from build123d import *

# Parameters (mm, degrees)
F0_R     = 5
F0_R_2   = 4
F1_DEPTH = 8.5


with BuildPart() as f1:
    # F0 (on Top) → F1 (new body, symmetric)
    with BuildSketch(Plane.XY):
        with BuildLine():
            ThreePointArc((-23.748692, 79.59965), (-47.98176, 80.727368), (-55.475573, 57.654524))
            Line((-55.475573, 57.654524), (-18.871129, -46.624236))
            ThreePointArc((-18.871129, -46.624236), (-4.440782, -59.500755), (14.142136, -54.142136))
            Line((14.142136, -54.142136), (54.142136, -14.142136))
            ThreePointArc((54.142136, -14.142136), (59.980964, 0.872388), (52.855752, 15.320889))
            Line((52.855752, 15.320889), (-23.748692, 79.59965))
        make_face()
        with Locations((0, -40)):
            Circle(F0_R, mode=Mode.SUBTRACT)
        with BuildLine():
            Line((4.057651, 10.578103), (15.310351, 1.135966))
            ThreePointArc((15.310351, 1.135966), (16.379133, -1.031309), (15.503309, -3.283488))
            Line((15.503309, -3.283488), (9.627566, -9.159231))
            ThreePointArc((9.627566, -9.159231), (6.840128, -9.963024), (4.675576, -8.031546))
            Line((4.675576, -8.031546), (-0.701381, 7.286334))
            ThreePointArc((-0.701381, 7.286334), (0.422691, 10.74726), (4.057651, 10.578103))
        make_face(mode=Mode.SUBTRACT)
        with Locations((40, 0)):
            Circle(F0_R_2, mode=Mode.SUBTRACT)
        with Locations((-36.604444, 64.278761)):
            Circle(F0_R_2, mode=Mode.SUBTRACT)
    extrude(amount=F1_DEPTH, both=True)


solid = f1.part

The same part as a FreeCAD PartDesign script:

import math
import FreeCAD as App
import Part
import Sketcher
from FreeCAD import Vector
Q = App.Units.Quantity

doc = App.newDocument("Part")
params = doc.addObject("Spreadsheet::Sheet", "Params")
for row, (alias, value) in enumerate([
    ("sketch1_diameter", "10 mm"),
    ("sketch1_diameter2", "8 mm"),
    ("sketch1_radius", "20 mm"),
    ("sketch1_radius2", "3 mm"),
    ("sketch1_length", "100 mm"),
    ("pad1_length", "17 mm"),
], start=1):
    params.set(f"A{row}", alias)
    params.set(f"B{row}", "=" + value)
    params.setAlias(f"B{row}", alias)

body = doc.addObject("PartDesign::Body", "Body")

# Sketch on XY plane
sketch1 = body.newObject("Sketcher::SketchObject", "Sketch")
sketch1.AttachmentSupport = (doc.getObject("XY_Plane"), [""])
sketch1.MapMode = "FlatFace"
sketch1.addGeometry([
    Part.ArcOfCircle(Part.Circle(Vector(-36.6, 64.3, 0), Vector(0, 0, 1), 20), math.radians(50), math.radians(199)),  # 0
    Part.LineSegment(Vector(-55.5, 57.7, 0), Vector(-18.9, -46.6, 0)),  # 1
    Part.ArcOfCircle(Part.Circle(Vector(0, -40, 0), Vector(0, 0, 1), 20), math.radians(-161), math.radians(-45)),  # 2
    Part.LineSegment(Vector(14.1, -54.1, 0), Vector(54.1, -14.1, 0)),  # 3
    Part.ArcOfCircle(Part.Circle(Vector(40, 0, 0), Vector(0, 0, 1), 20), math.radians(-45), math.radians(50)),  # 4
    Part.LineSegment(Vector(52.9, 15.3, 0), Vector(-23.7, 79.6, 0)),  # 5
    Part.Circle(Vector(0, -40, 0), Vector(0, 0, 1), 5),  # 6
    Part.ArcOfCircle(Part.Circle(Vector(2.1, 8.3, 0), Vector(0, 0, 1), 3), math.radians(50), math.radians(199)),  # 7
    Part.LineSegment(Vector(4.1, 10.6, 0), Vector(15.3, 1.1, 0)),  # 8
    Part.ArcOfCircle(Part.Circle(Vector(13.4, -1.2, 0), Vector(0, 0, 1), 3), math.radians(-45), math.radians(50)),  # 9
    Part.LineSegment(Vector(15.5, -3.3, 0), Vector(9.6, -9.2, 0)),  # 10
    Part.ArcOfCircle(Part.Circle(Vector(7.5, -7, 0), Vector(0, 0, 1), 3), math.radians(-161), math.radians(-45)),  # 11
    Part.LineSegment(Vector(4.7, -8, 0), Vector(-0.7, 7.3, 0)),  # 12
    Part.Circle(Vector(40, 0, 0), Vector(0, 0, 1), 4),  # 13
    Part.Circle(Vector(-36.6, 64.3, 0), Vector(0, 0, 1), 4),  # 14
], False)
sketch1.addConstraint([
    Sketcher.Constraint("Tangent", 0, 2, 1, 1),
    Sketcher.Constraint("Tangent", 1, 2, 2, 1),
    Sketcher.Constraint("Tangent", 2, 2, 3, 1),
    Sketcher.Constraint("Tangent", 3, 2, 4, 1),
    Sketcher.Constraint("Tangent", 4, 2, 5, 1),
    Sketcher.Constraint("Tangent", 5, 2, 0, 1),
    Sketcher.Constraint("Tangent", 7, 1, 8, 1),
    Sketcher.Constraint("Tangent", 8, 2, 9, 2),
    Sketcher.Constraint("Tangent", 9, 1, 10, 1),
    Sketcher.Constraint("Tangent", 10, 2, 11, 2),
    Sketcher.Constraint("Tangent", 11, 1, 12, 1),
    Sketcher.Constraint("Tangent", 12, 2, 7, 2),
    Sketcher.Constraint("Coincident", 6, 3, 2, 3),
    Sketcher.Constraint("Coincident", 13, 3, 4, 3),
    Sketcher.Constraint("Coincident", 14, 3, 0, 3),
    Sketcher.Constraint("Equal", 0, 2),
    Sketcher.Constraint("Equal", 2, 4),
    Sketcher.Constraint("Equal", 7, 9),
    Sketcher.Constraint("Equal", 9, 11),
    Sketcher.Constraint("Equal", 13, 14),
    Sketcher.Constraint("PointOnObject", 2, 3, -2),
    Sketcher.Constraint("PointOnObject", 4, 3, -1),
    Sketcher.Constraint("Parallel", 5, 8),
    Sketcher.Constraint("Parallel", 3, 10),
    Sketcher.Constraint("Parallel", 1, 12),
    Sketcher.Constraint("Diameter", 6, Q("10 mm")),
    Sketcher.Constraint("Diameter", 13, Q("8 mm")),
    Sketcher.Constraint("Radius", 0, Q("20 mm")),
    Sketcher.Constraint("Radius", 7, Q("3 mm")),
    Sketcher.Constraint("Angle", 3, Q("45 deg")),
    Sketcher.Constraint("Angle", 5, Q("140 deg")),
    Sketcher.Constraint("Distance", 5, Q("100 mm")),
    Sketcher.Constraint("DistanceY", 2, 3, -1, 1, Q("39.999999 mm")),
    Sketcher.Constraint("DistanceX", 7, 3, 9, 3, Q("11.252699 mm")),
    Sketcher.Constraint("DistanceY", 11, 3, 4, 2, Q("22.3588 mm")),
    Sketcher.Constraint("DistanceX", -1, 1, 7, 3, Q("2.129289 mm")),
])
sketch1.setExpression("Constraints[25]", "Params.sketch1_diameter")
sketch1.setExpression("Constraints[26]", "Params.sketch1_diameter2")
sketch1.setExpression("Constraints[27]", "Params.sketch1_radius")
sketch1.setExpression("Constraints[28]", "Params.sketch1_radius2")
sketch1.setExpression("Constraints[31]", "Params.sketch1_length")
pad1 = body.newObject("PartDesign::Pad", "Pad")
pad1.Profile = sketch1
pad1.setExpression("Length", "Params.pad1_length")
pad1.Midplane = True

doc.recompute()
